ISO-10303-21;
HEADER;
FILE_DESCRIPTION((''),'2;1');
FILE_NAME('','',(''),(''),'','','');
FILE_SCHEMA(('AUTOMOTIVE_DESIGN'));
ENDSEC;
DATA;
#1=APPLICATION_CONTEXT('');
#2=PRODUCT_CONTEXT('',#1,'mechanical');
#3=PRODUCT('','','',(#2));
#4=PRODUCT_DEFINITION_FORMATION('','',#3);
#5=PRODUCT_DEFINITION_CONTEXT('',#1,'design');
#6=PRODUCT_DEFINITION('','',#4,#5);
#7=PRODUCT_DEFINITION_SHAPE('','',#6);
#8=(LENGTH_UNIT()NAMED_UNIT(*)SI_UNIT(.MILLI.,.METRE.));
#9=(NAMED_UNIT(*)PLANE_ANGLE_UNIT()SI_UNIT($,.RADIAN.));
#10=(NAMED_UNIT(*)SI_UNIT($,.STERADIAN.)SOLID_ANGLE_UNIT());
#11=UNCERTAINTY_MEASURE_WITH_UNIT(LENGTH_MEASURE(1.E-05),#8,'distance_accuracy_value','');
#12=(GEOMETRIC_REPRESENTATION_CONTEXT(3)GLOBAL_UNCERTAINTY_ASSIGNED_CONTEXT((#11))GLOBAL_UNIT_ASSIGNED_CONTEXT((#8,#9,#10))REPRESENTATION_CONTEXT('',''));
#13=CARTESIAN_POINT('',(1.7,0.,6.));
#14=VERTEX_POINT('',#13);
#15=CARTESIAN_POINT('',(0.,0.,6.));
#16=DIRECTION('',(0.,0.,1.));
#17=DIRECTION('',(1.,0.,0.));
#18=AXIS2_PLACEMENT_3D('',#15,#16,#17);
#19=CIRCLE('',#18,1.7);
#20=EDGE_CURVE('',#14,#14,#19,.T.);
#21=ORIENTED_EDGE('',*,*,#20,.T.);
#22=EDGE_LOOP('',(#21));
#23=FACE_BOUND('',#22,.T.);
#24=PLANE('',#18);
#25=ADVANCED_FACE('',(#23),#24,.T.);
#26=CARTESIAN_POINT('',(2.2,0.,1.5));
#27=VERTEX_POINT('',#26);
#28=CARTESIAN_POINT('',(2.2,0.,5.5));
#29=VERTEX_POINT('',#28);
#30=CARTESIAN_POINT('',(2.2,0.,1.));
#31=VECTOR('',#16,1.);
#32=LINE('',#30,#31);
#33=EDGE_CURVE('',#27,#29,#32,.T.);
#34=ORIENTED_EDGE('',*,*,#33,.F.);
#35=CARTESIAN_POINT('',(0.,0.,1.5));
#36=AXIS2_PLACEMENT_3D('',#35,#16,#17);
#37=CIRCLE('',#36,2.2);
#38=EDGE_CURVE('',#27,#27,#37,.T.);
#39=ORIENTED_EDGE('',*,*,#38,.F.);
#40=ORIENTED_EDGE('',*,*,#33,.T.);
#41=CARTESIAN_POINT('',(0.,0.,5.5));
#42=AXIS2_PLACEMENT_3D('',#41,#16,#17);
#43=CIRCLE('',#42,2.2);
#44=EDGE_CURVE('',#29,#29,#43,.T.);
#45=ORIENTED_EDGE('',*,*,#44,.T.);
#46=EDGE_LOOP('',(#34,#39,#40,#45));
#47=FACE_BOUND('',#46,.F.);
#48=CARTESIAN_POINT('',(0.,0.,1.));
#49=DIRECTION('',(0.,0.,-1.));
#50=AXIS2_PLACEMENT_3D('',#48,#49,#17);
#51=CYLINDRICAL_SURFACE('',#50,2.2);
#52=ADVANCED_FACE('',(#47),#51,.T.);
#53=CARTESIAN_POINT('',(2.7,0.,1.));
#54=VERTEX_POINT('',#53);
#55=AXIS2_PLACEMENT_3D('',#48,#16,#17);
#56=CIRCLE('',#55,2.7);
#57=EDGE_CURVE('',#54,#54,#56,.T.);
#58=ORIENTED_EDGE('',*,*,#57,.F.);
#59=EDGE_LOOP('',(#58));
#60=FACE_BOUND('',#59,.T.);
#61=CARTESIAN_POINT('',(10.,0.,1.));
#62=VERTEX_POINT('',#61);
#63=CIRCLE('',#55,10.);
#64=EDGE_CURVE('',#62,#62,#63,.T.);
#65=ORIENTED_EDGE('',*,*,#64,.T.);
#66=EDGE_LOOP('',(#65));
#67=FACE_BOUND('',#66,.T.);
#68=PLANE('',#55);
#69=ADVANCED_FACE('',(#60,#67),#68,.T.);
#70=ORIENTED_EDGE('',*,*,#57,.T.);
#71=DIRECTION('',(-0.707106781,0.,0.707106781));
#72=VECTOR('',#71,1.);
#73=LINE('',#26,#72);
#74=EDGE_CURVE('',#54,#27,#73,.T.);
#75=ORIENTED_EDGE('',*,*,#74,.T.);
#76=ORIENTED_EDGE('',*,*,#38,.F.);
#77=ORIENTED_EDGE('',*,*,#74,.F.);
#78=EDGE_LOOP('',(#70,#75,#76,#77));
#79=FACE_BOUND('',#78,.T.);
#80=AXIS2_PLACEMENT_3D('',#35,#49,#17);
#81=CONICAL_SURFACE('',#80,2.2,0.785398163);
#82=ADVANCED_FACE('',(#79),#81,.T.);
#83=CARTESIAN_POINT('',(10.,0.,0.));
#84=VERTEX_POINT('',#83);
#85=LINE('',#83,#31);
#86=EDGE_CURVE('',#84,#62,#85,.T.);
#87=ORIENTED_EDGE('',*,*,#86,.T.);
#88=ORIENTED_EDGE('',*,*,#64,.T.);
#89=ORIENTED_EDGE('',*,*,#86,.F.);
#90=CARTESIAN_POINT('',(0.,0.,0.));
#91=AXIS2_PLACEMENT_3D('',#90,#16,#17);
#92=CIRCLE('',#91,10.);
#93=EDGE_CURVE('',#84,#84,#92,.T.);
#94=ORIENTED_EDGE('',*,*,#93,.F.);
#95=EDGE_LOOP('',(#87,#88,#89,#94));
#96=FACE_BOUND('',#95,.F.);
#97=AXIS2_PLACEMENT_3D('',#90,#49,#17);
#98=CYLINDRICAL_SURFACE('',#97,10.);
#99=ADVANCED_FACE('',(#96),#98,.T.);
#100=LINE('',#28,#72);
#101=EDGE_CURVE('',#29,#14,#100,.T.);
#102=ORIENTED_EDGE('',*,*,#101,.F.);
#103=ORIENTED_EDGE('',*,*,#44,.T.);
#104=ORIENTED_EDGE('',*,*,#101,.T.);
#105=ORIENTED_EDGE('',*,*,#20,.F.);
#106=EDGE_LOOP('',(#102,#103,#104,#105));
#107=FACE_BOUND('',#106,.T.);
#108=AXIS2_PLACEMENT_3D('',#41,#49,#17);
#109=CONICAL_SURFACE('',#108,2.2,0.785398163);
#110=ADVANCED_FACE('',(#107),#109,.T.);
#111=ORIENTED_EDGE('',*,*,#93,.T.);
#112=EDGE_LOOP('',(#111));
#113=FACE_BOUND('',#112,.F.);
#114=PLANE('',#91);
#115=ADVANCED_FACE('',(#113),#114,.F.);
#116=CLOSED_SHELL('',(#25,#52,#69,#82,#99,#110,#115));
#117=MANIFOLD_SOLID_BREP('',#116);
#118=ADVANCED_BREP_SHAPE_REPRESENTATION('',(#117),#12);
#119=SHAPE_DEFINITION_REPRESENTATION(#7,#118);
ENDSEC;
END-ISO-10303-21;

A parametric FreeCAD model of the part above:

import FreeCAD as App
import Part
import Sketcher

V = App.Vector


def edges_at(feature, points):
    """Names of the edges that pass closest to the given points."""
    edges = feature.Shape.Edges
    near = lambda p: min(range(len(edges)), key=lambda i: edges[i].distToShape(Part.Vertex(*p))[0])
    return sorted({f"Edge{near(p) + 1}" for p in points})

doc = App.newDocument("Part")
body = doc.addObject("PartDesign::Body", "Body")

# Sketch on XY plane
sketch1 = body.newObject("Sketcher::SketchObject", "Sketch")
sketch1.AttachmentSupport = (doc.getObject("XY_Plane"), [""])
sketch1.MapMode = "FlatFace"
sketch1.addGeometry(Part.Circle(V(0, 0, 0), V(0, 0, 1), 10), False)
sketch1.addConstraint(Sketcher.Constraint("Coincident", 0, 3, -1, 1))
sketch1.addConstraint(Sketcher.Constraint("Diameter", 0, 20.0))
pad1 = body.newObject("PartDesign::Pad", "Pad")
pad1.Profile = sketch1
pad1.Length = 1

# Sketch on XY plane
sketch2 = body.newObject("Sketcher::SketchObject", "Sketch001")
sketch2.AttachmentSupport = (doc.getObject("XY_Plane"), [""])
sketch2.MapMode = "FlatFace"
sketch2.AttachmentOffset = App.Placement(V(0, 0, 1), App.Rotation())
sketch2.addGeometry(Part.Circle(V(0, 0, 0), V(0, 0, 1), 2.2), False)
sketch2.addConstraint(Sketcher.Constraint("Coincident", 0, 3, -1, 1))
sketch2.addConstraint(Sketcher.Constraint("Diameter", 0, 4.4))
pad2 = body.newObject("PartDesign::Pad", "Pad001")
pad2.Profile = sketch2
pad2.Length = 5
doc.recompute()

chamfer = body.newObject("PartDesign::Chamfer", "Chamfer")
chamfer.Base = (pad2, edges_at(pad2, [(-2.2, 0, 1), (-2.2, 0, 6)]))
chamfer.Size = 0.5

doc.recompute()
